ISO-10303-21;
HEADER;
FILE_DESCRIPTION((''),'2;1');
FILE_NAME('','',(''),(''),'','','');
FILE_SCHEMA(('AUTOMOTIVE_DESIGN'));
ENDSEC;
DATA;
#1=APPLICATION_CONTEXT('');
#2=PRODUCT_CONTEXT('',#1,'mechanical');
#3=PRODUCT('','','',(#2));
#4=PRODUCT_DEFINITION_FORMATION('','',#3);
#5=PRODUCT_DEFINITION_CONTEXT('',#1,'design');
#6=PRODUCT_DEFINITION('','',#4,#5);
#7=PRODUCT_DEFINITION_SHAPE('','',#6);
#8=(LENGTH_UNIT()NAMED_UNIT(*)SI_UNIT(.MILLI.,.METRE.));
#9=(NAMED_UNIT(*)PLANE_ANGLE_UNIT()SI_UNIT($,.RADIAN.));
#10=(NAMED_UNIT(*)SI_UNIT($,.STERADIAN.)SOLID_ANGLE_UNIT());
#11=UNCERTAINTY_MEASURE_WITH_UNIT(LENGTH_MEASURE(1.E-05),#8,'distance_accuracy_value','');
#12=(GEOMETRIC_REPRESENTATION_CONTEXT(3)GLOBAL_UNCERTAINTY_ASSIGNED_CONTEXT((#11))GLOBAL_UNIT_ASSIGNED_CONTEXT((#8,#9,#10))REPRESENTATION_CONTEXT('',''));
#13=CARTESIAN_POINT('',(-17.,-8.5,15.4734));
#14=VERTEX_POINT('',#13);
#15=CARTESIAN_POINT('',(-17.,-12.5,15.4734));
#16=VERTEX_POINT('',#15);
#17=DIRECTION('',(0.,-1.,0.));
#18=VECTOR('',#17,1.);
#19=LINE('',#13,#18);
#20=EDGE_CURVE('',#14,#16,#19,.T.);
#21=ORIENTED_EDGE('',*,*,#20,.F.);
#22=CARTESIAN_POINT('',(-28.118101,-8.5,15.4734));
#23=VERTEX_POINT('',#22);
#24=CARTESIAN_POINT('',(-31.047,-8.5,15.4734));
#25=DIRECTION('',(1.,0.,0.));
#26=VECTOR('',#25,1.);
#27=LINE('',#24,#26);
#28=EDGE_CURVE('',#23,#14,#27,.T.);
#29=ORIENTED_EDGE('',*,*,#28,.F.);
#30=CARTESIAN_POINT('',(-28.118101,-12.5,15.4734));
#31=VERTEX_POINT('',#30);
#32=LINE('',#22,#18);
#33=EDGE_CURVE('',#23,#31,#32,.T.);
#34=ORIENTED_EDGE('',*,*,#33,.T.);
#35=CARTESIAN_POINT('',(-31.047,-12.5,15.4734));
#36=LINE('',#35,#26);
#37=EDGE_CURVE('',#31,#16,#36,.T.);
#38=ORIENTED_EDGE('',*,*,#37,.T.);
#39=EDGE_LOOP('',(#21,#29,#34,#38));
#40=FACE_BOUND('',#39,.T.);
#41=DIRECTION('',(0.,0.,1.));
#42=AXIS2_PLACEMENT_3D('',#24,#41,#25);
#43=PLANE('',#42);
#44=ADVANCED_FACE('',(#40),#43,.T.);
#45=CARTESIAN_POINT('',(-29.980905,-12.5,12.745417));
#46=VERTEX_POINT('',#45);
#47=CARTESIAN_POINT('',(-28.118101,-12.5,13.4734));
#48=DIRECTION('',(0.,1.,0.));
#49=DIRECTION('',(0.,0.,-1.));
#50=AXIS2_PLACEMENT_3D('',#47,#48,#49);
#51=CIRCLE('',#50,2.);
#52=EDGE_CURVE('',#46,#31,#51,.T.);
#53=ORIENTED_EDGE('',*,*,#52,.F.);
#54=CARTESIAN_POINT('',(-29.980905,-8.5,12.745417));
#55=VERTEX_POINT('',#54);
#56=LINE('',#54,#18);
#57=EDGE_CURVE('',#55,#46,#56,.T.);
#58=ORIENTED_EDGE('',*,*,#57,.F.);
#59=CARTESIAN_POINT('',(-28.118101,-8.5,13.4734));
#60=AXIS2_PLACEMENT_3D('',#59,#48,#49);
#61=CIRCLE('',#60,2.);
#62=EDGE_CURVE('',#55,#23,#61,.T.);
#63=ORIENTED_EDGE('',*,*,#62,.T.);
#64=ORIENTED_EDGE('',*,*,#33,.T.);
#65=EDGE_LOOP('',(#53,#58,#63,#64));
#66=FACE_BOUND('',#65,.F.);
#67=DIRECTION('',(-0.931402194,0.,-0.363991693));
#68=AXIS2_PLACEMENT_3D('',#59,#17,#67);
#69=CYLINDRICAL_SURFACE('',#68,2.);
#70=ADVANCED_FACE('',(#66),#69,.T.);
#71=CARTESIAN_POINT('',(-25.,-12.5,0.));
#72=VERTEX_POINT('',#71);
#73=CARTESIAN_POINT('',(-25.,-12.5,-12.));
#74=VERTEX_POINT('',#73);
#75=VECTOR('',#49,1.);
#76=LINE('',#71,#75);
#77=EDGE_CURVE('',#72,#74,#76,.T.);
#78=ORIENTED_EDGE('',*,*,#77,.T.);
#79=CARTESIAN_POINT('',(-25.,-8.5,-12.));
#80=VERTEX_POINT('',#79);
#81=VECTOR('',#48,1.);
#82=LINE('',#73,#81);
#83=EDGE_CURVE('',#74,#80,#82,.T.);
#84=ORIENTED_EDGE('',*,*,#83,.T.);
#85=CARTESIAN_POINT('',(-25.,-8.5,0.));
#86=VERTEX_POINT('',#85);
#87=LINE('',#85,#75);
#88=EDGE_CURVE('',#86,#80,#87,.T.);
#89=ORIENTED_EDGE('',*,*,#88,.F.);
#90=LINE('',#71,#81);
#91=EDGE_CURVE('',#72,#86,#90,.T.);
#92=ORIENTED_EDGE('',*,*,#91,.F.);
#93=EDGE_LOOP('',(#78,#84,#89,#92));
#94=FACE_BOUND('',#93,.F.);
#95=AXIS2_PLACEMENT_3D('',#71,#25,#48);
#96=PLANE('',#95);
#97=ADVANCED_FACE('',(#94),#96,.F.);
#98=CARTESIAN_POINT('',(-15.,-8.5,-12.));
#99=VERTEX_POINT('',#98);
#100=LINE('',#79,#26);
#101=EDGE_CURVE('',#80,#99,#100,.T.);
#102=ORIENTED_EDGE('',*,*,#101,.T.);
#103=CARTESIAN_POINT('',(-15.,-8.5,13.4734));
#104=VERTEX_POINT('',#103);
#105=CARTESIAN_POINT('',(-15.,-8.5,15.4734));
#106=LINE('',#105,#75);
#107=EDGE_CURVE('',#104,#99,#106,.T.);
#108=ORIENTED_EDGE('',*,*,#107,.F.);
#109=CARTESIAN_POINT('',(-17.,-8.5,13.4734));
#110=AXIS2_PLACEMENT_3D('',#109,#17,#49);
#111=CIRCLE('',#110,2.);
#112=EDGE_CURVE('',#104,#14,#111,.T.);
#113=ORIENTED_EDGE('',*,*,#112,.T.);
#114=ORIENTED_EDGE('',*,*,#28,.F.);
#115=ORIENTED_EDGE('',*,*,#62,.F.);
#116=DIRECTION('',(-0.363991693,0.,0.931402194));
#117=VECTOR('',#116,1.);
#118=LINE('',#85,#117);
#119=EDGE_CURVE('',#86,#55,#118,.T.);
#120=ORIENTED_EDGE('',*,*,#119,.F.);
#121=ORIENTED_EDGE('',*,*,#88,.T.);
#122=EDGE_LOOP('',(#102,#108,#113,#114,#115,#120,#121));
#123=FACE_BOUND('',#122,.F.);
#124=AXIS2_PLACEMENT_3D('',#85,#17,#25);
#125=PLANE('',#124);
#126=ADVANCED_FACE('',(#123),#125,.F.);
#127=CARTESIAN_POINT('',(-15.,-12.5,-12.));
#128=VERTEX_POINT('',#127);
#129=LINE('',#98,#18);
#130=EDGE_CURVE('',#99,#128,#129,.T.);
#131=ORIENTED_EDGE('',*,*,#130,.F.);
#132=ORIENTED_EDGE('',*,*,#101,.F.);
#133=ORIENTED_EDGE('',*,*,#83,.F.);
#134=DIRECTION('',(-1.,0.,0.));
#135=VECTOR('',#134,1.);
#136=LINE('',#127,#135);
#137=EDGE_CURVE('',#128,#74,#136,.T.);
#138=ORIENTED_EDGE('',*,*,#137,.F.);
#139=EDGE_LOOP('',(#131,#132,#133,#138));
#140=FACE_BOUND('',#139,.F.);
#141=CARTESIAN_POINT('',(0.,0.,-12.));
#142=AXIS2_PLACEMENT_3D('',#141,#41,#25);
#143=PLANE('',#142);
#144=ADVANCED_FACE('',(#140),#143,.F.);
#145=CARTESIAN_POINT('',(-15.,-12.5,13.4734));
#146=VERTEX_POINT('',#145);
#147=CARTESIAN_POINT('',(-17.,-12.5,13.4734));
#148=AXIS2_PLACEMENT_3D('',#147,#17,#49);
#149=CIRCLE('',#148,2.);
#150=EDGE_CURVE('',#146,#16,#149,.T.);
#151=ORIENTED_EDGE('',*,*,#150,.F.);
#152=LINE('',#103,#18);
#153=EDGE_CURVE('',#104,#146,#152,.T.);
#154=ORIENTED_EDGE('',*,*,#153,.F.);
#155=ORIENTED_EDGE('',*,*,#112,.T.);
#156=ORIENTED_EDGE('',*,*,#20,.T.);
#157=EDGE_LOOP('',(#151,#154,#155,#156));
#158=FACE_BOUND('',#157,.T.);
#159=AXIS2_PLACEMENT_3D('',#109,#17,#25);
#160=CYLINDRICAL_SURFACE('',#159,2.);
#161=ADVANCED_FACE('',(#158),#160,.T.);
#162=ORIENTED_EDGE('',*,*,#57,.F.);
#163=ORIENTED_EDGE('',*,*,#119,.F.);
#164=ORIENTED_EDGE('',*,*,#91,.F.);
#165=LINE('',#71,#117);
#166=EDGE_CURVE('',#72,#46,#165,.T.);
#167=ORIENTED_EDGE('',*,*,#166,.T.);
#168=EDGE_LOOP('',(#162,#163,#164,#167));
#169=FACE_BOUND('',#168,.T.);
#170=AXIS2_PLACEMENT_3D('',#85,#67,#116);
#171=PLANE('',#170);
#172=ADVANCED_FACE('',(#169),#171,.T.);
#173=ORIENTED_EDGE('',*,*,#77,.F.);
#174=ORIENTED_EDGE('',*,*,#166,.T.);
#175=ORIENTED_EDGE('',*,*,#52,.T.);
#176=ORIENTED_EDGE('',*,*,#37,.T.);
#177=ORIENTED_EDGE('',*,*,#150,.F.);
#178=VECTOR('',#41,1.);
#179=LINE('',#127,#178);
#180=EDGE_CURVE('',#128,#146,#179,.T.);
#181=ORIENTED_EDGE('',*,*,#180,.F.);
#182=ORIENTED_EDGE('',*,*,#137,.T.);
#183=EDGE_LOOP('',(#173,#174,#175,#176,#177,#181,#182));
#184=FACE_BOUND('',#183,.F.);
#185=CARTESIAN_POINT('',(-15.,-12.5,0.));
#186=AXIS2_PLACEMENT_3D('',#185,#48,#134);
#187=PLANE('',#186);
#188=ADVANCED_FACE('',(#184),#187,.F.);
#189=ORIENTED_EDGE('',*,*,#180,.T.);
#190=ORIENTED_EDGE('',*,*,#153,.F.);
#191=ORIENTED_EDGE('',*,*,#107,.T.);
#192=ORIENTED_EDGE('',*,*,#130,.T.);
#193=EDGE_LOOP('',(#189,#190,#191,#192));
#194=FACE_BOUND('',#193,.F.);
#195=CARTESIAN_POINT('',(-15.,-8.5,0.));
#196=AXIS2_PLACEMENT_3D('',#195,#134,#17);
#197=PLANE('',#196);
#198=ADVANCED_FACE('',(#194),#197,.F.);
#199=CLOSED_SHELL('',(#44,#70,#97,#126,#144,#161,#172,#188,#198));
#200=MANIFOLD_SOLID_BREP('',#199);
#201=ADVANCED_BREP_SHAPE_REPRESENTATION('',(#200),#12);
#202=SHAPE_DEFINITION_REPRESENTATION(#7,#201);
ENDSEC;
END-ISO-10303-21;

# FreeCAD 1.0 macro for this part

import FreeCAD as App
import Part
import Sketcher

V = App.Vector
Q = App.Units.Quantity


def edges_at(feature, points):
    """Names of the edges that pass closest to the given points."""
    edges = feature.Shape.Edges
    near = lambda p: min(range(len(edges)), key=lambda i: edges[i].distToShape(Part.Vertex(*p))[0])
    return sorted({f"Edge{near(p) + 1}" for p in points})

doc = App.newDocument("Part")
body = doc.addObject("PartDesign::Body", "Body")

# Sketch on XY plane
sketch1 = body.newObject("Sketcher::SketchObject", "Sketch")
sketch1.AttachmentSupport = (doc.getObject("XY_Plane"), [""])
sketch1.MapMode = "FlatFace"
sketch1.addGeometry(Part.LineSegment(V(-25, -8.5, 0), V(-25, -12.5, 0)), False)
sketch1.addGeometry(Part.LineSegment(V(-25, -12.5, 0), V(-15, -12.5, 0)), False)
sketch1.addGeometry(Part.LineSegment(V(-15, -12.5, 0), V(-15, -8.5, 0)), False)
sketch1.addGeometry(Part.LineSegment(V(-15, -8.5, 0), V(-25, -8.5, 0)), False)
sketch1.addConstraint(Sketcher.Constraint("Coincident", 0, 2, 1, 1))
sketch1.addConstraint(Sketcher.Constraint("Coincident", 1, 2, 2, 1))
sketch1.addConstraint(Sketcher.Constraint("Coincident", 2, 2, 3, 1))
sketch1.addConstraint(Sketcher.Constraint("Coincident", 3, 2, 0, 1))
sketch1.addConstraint(Sketcher.Constraint("Vertical", 0))
sketch1.addConstraint(Sketcher.Constraint("Horizontal", 1))
sketch1.addConstraint(Sketcher.Constraint("Vertical", 2))
sketch1.addConstraint(Sketcher.Constraint("Horizontal", 3))
sketch1.addConstraint(Sketcher.Constraint("DistanceX", 1, 1, 1, 2, Q("10 mm")))
sketch1.addConstraint(Sketcher.Constraint("DistanceY", 0, 2, 0, 1, Q("4 mm")))
sketch1.addConstraint(Sketcher.Constraint("DistanceX", 0, 2, -1, 1, Q("25 mm")))
sketch1.addConstraint(Sketcher.Constraint("DistanceY", 0, 2, -1, 1, Q("12.5 mm")))
pad1 = body.newObject("PartDesign::Pad", "Pad")
pad1.Profile = sketch1
pad1.Length = 12
pad1.Reversed = True

# Sketch on XZ plane
sketch2 = body.newObject("Sketcher::SketchObject", "Sketch001")
sketch2.AttachmentSupport = (doc.getObject("XZ_Plane"), [""])
sketch2.MapMode = "FlatFace"
sketch2.AttachmentOffset = App.Placement(V(0, 0, 8.5), App.Rotation())
sketch2.addGeometry(Part.LineSegment(V(-25, 0, 0), V(-31.047, 15.4734, 0)), False)
sketch2.addGeometry(Part.LineSegment(V(-31.047, 15.4734, 0), V(-15, 15.4734, 0)), False)
sketch2.addGeometry(Part.LineSegment(V(-15, 15.4734, 0), V(-15, 0, 0)), False)
sketch2.addGeometry(Part.LineSegment(V(-15, 0, 0), V(-25, 0, 0)), False)
sketch2.addConstraint(Sketcher.Constraint("Coincident", 0, 2, 1, 1))
sketch2.addConstraint(Sketcher.Constraint("Coincident", 1, 2, 2, 1))
sketch2.addConstraint(Sketcher.Constraint("Coincident", 2, 2, 3, 1))
sketch2.addConstraint(Sketcher.Constraint("Coincident", 3, 2, 0, 1))
sketch2.addConstraint(Sketcher.Constraint("Horizontal", 1))
sketch2.addConstraint(Sketcher.Constraint("Vertical", 2))
sketch2.addConstraint(Sketcher.Constraint("Horizontal", 3))
sketch2.addConstraint(Sketcher.Constraint("PointOnObject", 2, 2, -1))
sketch2.addConstraint(Sketcher.Constraint("DistanceX", 3, 2, 3, 1, Q("10 mm")))
sketch2.addConstraint(Sketcher.Constraint("DistanceX", 1, 2, -1, 1, Q("15 mm")))
sketch2.addConstraint(Sketcher.Constraint("DistanceX", 1, 1, 1, 2, Q("16.047 mm")))
sketch2.addConstraint(Sketcher.Constraint("Distance", 0, Q("16.613 mm")))
pad2 = body.newObject("PartDesign::Pad", "Pad001")
pad2.Profile = sketch2
pad2.Length = 4
doc.recompute()

fillet = body.newObject("PartDesign::Fillet", "Fillet")
fillet.Base = (pad2, edges_at(pad2, [(-15, -10.5, 15.473), (-31.047, -10.5, 15.473)]))
fillet.Radius = 2

doc.recompute()
